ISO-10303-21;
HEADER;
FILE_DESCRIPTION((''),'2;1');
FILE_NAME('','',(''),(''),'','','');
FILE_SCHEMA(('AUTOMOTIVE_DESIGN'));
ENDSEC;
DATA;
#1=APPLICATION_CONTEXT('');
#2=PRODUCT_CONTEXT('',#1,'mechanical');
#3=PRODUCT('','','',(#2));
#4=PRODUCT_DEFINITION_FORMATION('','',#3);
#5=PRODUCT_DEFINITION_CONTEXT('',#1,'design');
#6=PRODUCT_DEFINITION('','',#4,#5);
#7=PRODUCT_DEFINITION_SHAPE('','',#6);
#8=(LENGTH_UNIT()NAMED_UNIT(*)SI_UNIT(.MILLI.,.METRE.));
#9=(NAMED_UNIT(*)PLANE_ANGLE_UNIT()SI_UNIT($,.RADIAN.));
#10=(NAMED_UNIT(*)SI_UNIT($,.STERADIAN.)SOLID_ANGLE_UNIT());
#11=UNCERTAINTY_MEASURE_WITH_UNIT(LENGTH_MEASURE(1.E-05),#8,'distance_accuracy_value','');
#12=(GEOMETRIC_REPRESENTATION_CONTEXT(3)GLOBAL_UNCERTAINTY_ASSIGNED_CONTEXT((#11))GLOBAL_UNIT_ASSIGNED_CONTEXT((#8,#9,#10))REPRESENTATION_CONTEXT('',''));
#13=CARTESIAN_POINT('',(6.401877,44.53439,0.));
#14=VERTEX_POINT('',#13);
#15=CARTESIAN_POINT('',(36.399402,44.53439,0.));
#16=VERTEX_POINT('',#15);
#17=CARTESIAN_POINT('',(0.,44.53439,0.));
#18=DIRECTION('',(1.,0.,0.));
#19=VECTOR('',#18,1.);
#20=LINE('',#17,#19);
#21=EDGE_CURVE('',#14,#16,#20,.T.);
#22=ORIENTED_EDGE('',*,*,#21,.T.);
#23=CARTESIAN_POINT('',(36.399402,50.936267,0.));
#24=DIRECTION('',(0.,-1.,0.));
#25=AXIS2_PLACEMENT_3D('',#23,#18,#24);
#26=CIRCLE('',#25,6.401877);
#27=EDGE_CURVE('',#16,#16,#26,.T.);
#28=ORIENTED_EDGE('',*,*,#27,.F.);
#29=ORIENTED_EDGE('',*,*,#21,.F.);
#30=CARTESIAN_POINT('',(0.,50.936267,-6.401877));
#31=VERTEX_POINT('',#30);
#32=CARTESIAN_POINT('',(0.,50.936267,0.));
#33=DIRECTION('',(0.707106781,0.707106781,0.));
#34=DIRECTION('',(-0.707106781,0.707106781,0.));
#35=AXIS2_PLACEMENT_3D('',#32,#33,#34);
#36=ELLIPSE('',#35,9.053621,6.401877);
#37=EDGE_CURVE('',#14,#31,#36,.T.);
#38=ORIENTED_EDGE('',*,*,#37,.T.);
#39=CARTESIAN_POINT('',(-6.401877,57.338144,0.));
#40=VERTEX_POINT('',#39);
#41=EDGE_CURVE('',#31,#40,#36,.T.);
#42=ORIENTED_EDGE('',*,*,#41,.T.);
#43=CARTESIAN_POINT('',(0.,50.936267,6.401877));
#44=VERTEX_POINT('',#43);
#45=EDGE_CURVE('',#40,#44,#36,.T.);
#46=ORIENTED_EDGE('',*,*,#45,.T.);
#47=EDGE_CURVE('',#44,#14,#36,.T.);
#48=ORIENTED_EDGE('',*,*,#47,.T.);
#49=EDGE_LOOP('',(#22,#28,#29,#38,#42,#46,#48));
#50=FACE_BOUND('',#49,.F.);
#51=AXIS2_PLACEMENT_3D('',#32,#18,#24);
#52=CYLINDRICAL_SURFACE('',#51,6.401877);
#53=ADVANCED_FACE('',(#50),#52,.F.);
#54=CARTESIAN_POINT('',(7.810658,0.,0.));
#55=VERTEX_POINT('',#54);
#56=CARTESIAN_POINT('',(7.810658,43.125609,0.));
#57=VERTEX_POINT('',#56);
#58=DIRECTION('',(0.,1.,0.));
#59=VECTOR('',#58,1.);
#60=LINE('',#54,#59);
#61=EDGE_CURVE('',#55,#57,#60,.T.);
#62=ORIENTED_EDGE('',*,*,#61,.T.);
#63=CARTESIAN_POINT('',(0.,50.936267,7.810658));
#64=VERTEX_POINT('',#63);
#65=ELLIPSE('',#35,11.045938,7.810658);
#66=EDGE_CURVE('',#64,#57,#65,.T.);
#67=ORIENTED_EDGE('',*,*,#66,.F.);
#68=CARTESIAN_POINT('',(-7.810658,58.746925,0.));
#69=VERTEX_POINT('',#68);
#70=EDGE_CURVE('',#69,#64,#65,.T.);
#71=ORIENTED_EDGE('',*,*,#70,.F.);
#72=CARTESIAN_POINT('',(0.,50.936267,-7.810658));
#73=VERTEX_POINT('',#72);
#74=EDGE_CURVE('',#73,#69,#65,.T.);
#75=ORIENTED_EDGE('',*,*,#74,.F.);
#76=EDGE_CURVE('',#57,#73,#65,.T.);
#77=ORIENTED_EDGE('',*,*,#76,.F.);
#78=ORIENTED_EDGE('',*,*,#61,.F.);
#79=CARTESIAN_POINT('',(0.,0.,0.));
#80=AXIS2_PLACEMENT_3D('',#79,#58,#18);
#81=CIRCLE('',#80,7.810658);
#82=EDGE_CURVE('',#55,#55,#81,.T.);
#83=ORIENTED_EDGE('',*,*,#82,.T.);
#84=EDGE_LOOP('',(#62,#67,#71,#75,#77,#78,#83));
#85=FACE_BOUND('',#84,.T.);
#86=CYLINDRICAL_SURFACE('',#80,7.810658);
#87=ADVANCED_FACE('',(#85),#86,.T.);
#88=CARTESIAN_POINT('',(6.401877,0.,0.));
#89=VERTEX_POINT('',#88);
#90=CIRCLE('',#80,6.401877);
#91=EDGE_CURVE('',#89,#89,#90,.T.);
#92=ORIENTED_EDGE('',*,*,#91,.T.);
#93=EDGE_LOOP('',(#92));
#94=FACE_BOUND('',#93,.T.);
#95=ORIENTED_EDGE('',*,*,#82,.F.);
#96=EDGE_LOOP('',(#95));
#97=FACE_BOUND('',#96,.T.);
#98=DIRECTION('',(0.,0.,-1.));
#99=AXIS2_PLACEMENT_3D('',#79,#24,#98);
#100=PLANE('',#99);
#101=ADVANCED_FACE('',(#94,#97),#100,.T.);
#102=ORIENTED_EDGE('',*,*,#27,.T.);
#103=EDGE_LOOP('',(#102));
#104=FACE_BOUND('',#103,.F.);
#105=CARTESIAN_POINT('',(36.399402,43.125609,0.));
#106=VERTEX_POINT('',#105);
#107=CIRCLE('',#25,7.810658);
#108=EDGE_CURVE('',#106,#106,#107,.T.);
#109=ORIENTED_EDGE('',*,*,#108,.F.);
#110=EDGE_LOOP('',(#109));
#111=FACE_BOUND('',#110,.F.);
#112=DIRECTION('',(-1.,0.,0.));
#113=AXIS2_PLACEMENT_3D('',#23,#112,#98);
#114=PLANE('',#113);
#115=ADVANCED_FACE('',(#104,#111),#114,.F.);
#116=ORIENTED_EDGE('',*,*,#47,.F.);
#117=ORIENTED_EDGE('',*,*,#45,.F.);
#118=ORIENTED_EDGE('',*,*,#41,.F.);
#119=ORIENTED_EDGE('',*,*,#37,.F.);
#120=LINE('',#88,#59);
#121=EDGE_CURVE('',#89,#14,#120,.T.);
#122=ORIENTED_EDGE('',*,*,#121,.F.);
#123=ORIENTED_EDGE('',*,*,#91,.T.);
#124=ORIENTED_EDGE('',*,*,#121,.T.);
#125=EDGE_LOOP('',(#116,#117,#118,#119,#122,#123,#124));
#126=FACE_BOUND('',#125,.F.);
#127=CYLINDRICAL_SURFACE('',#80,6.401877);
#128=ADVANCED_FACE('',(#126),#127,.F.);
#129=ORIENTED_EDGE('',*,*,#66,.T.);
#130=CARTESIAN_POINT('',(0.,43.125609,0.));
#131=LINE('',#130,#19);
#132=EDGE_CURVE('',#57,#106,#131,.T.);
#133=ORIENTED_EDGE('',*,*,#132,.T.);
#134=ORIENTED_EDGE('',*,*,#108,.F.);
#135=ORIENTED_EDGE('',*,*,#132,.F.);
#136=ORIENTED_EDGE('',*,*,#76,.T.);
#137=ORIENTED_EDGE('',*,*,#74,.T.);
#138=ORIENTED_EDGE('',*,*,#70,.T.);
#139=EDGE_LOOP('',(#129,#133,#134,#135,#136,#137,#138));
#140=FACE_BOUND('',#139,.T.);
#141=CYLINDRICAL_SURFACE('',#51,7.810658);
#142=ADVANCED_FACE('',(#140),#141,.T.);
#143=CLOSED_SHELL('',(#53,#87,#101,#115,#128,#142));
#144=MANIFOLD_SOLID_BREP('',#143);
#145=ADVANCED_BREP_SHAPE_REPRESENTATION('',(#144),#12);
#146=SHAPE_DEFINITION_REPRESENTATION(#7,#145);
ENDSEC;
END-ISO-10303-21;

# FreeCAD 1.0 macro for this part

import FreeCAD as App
import Part
import Sketcher

V = App.Vector
Q = App.Units.Quantity

doc = App.newDocument("Part")
body = doc.addObject("PartDesign::Body", "Body")

# Sketch on XZ plane
sketch1 = body.newObject("Sketcher::SketchObject", "Sketch")
sketch1.AttachmentSupport = (doc.getObject("XZ_Plane"), [""])
sketch1.MapMode = "FlatFace"
sketch1.addGeometry([
    Part.Circle(V(0, 0, 0), V(0, 0, 1), 8),
    Part.Circle(V(0, 0, 0), V(0, 0, 1), 6),
], False)
sketch1.addConstraint([
    Sketcher.Constraint("Coincident", 0, 3, -1, 1),
    Sketcher.Constraint("Coincident", 1, 3, -1, 1),
    Sketcher.Constraint("Diameter", 0, Q("15.621316 mm")),
    Sketcher.Constraint("Diameter", 1, Q("12.803754 mm")),
])

# Sketch on XY plane
sketch2 = body.newObject("Sketcher::SketchObject", "Sketch001")
sketch2.AttachmentSupport = (doc.getObject("XY_Plane"), [""])
sketch2.MapMode = "FlatFace"
sketch2.addGeometry([
    Part.LineSegment(V(0, 0, 0), V(0, 51, 0)),
    Part.LineSegment(V(0, 51, 0), V(36, 51, 0)),
], False)
sketch2.addConstraint([
    Sketcher.Constraint("Coincident", 0, 2, 1, 1),
    Sketcher.Constraint("Vertical", 0),
    Sketcher.Constraint("Horizontal", 1),
    Sketcher.Constraint("Coincident", 0, 1, -1, 1),
    Sketcher.Constraint("DistanceX", 1, 1, 1, 2, Q("36.399402 mm")),
    Sketcher.Constraint("DistanceY", 0, 1, 0, 2, Q("50.936267 mm")),
])
doc.recompute()

additivepipe = body.newObject("PartDesign::AdditivePipe", "AdditivePipe")
additivepipe.Profile = sketch1
additivepipe.Spine = (sketch2, ["Edge1", "Edge2"])
additivepipe.Transition = "Right corner"

doc.recompute()
